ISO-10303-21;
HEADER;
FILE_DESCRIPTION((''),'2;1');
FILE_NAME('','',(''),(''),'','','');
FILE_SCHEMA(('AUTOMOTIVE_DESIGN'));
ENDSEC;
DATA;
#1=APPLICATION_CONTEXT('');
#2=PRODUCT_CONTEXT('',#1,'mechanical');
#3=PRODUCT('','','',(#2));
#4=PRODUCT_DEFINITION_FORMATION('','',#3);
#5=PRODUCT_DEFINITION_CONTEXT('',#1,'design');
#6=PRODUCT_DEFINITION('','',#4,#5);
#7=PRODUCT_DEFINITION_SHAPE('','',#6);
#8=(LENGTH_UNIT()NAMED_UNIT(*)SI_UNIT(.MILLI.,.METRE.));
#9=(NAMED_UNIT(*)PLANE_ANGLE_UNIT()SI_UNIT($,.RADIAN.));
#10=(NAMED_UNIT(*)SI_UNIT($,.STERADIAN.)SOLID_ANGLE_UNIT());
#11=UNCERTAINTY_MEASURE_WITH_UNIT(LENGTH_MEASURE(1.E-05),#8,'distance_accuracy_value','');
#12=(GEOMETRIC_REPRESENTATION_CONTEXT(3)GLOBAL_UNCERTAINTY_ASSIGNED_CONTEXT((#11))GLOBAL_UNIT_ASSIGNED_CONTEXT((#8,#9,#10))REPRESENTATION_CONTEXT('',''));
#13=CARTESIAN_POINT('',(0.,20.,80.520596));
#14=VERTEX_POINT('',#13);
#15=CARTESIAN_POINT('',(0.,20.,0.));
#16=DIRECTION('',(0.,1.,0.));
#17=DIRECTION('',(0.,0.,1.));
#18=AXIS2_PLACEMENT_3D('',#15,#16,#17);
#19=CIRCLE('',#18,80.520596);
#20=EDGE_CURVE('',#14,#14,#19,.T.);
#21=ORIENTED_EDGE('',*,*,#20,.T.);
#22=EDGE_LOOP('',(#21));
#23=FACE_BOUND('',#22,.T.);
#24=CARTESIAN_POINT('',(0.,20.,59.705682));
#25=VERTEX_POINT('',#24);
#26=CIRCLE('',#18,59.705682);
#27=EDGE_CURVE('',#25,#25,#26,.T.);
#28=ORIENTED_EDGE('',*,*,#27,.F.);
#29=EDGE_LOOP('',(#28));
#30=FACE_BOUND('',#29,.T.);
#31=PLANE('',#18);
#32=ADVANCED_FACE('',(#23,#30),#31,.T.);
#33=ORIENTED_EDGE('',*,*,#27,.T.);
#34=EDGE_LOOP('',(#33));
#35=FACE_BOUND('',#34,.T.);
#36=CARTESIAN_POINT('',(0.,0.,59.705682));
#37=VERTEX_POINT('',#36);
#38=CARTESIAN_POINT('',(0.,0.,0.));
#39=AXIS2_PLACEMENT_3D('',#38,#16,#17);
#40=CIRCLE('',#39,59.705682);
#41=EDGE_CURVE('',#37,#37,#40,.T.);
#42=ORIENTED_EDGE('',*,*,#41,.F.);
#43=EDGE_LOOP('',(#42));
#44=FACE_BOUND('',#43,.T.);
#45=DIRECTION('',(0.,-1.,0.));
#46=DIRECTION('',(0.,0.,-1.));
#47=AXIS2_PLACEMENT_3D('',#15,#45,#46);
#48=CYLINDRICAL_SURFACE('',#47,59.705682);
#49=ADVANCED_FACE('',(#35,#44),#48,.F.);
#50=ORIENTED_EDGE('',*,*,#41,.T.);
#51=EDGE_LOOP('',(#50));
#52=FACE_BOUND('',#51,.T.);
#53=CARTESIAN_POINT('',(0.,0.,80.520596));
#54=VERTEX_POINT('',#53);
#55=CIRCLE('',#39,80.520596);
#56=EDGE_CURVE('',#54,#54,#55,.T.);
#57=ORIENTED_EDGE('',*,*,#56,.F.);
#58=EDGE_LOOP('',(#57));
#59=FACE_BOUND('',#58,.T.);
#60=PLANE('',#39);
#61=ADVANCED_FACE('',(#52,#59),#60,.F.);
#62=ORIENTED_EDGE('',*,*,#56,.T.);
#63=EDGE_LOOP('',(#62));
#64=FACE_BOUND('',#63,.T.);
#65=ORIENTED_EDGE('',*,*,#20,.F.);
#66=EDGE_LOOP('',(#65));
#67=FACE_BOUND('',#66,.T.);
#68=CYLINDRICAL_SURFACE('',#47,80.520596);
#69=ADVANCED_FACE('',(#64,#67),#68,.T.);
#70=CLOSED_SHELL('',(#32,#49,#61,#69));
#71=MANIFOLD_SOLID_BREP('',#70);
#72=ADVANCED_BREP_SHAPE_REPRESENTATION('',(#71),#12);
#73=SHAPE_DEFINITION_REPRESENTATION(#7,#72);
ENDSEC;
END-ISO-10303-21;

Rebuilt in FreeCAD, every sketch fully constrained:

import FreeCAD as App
import Part
import Sketcher
Q = App.Units.Quantity

doc = App.newDocument("Part")
body = doc.addObject("PartDesign::Body", "Body")

# Sketch on XZ plane
sketch1 = body.newObject("Sketcher::SketchObject", "Sketch")
sketch1.AttachmentSupport = (doc.getObject("XZ_Plane"), [""])
sketch1.MapMode = "FlatFace"
sketch1.addGeometry([
    Part.Circle(App.Vector(0, 0, 0), App.Vector(0, 0, 1), 80.520596),
    Part.Circle(App.Vector(0, 0, 0), App.Vector(0, 0, 1), 59.705682),
], False)
sketch1.addConstraint([
    Sketcher.Constraint("Coincident", 0, 3, -1, 1),
    Sketcher.Constraint("Coincident", 1, 3, -1, 1),
    Sketcher.Constraint("Diameter", 0, Q("161.041192 mm")),
    Sketcher.Constraint("Diameter", 1, Q("119.411364 mm")),
])
pad1 = body.newObject("PartDesign::Pad", "Pad")
pad1.Profile = sketch1
pad1.Length = 20
pad1.Reversed = True

doc.recompute()
